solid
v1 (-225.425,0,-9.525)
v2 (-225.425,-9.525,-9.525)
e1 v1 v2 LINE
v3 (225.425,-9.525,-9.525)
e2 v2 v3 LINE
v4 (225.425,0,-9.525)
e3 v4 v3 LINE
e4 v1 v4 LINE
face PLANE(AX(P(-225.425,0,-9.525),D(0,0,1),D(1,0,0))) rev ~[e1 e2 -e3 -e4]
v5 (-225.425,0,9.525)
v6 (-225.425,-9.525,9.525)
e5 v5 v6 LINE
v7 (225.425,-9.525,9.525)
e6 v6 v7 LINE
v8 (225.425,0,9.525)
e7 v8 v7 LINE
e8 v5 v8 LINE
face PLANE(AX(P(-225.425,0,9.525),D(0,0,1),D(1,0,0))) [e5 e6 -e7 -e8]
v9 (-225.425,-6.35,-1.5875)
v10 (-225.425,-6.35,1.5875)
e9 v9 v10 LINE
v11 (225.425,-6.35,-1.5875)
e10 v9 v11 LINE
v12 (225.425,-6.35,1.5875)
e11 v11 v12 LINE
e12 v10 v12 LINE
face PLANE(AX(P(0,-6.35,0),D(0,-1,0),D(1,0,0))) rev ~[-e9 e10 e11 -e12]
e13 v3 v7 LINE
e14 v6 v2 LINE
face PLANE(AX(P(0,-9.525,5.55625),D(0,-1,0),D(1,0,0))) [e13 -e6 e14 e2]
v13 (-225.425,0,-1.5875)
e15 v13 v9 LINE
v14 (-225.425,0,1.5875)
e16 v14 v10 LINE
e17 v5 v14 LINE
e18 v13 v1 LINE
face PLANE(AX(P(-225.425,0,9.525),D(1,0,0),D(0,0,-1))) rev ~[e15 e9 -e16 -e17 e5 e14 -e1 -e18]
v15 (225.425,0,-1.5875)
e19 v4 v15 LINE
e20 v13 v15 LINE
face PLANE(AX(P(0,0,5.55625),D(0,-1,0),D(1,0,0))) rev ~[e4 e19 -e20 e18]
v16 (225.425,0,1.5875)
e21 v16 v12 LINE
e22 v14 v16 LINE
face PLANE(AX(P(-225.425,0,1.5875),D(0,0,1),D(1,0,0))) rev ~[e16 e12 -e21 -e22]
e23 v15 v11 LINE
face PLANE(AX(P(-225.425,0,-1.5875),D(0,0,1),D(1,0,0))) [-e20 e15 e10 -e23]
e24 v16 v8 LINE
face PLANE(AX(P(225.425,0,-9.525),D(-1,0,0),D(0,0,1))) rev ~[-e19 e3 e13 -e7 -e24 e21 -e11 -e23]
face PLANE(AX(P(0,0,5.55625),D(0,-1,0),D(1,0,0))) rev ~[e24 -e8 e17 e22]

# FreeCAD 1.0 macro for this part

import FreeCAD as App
import Part
import Sketcher
from FreeCAD import Vector
Q = App.Units.Quantity


def add_polygon(sketch, points):
    """Adds a closed chain of lines whose ends are joined by coincident constraints."""
    first, n = sketch.GeometryCount, len(points)
    for a, b in zip(points, points[1:] + points[:1]):
        sketch.addGeometry(Part.LineSegment(App.Vector(*a, 0), App.Vector(*b, 0)), False)
    for i in range(n):
        sketch.addConstraint(Sketcher.Constraint("Coincident", first + i, 2, first + (i + 1) % n, 1))

doc = App.newDocument("Part")
body = doc.addObject("PartDesign::Body", "Body")

# Sketch on XZ plane
sketch1 = doc.addObject("Sketcher::SketchObject", "Sketch")
body.addObject(sketch1)
sketch1.AttachmentSupport = (doc.XZ_Plane, [""])
sketch1.MapMode = "FlatFace"
add_polygon(sketch1, [(-225, 10), (-225, -10), (225, -10), (225, 10)])  # lines 0-3
sketch1.addConstraint([
    Sketcher.Constraint("Vertical", 0),
    Sketcher.Constraint("Horizontal", 1),
    Sketcher.Constraint("Vertical", 2),
    Sketcher.Constraint("Horizontal", 3),
    Sketcher.Constraint("Symmetric", 0, 2, 2, 2, -1, 1),
    Sketcher.Constraint("DistanceX", 1, 1, 1, 2, Q("17.75 in")),
    Sketcher.Constraint("DistanceY", 0, 2, 0, 1, Q("0.75 in")),
])
pad1 = doc.addObject("PartDesign::Pad", "Pad")
body.addObject(pad1)
pad1.Profile = sketch1
pad1.Length = Q("0.375 in")

# Sketch on XZ plane
sketch2 = doc.addObject("Sketcher::SketchObject", "Sketch001")
body.addObject(sketch2)
sketch2.AttachmentSupport = (doc.XZ_Plane, [""])
sketch2.MapMode = "FlatFace"
add_polygon(sketch2, [(-225.4, 1.6), (-225.4, -1.6), (225.4, -1.6), (225.4, 1.6)])  # lines 0-3
sketch2.addConstraint([
    Sketcher.Constraint("Vertical", 0),
    Sketcher.Constraint("Horizontal", 1),
    Sketcher.Constraint("Vertical", 2),
    Sketcher.Constraint("Horizontal", 3),
    Sketcher.Constraint("Symmetric", 0, 2, 2, 2, -1, 1),
    Sketcher.Constraint("DistanceX", 1, 1, 1, 2, Q("17.75 in")),
    Sketcher.Constraint("DistanceY", 0, 2, 0, 1, Q("0.125 in")),
])
pocket1 = doc.addObject("PartDesign::Pocket", "Pocket")
body.addObject(pocket1)
pocket1.Profile = sketch2
pocket1.Length = Q("0.25 in")
pocket1.Reversed = True

doc.recompute()
